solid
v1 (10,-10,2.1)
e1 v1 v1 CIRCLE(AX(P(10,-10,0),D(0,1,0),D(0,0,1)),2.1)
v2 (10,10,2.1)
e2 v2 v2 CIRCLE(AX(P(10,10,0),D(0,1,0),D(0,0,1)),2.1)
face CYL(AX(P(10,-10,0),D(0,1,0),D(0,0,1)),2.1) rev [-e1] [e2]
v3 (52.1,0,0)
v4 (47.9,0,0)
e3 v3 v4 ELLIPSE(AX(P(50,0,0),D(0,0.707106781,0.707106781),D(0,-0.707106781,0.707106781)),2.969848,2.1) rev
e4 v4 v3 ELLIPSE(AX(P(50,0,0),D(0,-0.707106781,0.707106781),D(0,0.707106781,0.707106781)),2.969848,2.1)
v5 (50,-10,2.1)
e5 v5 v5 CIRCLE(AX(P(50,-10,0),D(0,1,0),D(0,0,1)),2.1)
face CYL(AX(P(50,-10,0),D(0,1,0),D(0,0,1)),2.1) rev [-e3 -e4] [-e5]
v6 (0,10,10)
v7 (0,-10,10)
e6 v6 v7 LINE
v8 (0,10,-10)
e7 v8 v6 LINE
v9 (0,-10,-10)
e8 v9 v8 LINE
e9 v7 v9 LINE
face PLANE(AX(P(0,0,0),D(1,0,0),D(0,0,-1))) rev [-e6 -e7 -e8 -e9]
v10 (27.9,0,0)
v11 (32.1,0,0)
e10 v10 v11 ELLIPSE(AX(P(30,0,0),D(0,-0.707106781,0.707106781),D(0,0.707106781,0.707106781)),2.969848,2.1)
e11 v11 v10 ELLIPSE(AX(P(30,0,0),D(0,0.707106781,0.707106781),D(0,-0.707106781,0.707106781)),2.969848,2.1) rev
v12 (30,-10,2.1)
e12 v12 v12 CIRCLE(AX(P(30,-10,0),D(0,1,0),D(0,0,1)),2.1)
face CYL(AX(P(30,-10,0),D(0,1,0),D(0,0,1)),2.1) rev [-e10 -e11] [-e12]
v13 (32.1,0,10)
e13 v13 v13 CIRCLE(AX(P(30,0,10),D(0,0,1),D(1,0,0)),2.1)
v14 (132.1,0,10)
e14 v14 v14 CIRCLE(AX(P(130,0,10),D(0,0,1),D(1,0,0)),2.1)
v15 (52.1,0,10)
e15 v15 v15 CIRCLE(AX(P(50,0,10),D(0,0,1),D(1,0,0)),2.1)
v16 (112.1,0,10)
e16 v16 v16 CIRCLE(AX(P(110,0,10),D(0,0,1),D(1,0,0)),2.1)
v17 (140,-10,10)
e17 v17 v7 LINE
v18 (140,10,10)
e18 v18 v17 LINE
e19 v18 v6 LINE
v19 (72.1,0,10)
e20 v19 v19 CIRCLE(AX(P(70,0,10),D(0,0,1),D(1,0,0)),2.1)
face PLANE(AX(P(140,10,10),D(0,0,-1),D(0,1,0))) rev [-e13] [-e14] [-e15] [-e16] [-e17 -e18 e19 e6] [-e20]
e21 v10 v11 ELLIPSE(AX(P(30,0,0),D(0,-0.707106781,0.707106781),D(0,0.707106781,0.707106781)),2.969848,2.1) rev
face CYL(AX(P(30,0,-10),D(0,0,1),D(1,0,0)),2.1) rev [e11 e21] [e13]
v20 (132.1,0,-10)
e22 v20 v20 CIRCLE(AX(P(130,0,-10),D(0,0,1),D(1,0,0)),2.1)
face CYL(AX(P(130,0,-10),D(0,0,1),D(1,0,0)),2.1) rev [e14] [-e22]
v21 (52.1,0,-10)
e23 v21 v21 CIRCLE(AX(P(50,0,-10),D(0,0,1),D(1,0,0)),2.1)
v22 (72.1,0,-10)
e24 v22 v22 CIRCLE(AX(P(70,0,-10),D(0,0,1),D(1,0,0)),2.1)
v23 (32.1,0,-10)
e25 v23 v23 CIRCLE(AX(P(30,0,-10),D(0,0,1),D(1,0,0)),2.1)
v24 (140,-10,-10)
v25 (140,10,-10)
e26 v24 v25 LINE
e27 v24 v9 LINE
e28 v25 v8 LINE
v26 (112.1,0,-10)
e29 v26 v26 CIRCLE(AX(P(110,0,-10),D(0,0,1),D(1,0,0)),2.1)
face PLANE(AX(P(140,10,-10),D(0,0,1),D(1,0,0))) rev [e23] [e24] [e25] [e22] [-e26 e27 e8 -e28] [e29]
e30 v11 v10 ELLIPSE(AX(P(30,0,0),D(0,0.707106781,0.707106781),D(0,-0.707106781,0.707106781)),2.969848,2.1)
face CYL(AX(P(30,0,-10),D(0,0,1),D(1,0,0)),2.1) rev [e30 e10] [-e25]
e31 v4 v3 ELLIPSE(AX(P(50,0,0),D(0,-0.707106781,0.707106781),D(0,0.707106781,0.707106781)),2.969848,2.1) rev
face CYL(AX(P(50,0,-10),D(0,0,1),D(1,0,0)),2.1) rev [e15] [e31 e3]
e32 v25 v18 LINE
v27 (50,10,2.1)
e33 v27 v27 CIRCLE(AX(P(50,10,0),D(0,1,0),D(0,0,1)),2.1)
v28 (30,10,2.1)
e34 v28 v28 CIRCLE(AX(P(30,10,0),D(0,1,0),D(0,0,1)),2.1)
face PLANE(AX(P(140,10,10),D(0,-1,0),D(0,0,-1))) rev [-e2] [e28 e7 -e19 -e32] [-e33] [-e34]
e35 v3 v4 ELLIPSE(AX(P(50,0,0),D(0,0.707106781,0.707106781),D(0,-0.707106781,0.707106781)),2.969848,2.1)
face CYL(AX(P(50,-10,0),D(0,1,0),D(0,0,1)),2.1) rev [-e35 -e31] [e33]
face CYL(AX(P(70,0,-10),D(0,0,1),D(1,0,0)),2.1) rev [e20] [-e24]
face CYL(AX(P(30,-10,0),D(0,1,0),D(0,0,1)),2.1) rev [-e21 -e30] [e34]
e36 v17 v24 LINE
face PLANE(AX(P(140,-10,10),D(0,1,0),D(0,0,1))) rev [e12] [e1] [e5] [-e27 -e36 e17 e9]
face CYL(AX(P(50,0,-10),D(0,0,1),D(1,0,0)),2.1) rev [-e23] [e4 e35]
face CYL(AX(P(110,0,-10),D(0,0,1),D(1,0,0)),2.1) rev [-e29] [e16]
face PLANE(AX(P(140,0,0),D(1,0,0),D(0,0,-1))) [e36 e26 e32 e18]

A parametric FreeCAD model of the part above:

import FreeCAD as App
import Part
import Sketcher
from FreeCAD import Vector

doc = App.newDocument("Part")
body = doc.addObject("PartDesign::Body", "Body")

sketch1 = body.newObject("Sketcher::SketchObject", "Sketch")
sketch1.AttachmentSupport = (doc.getObject("YZ_Plane"), [""])
sketch1.MapMode = "FlatFace"
sketch1.addGeometry([
    Part.LineSegment(Vector(10, 10, 0), Vector(-10, 10, 0)),
    Part.LineSegment(Vector(-10, 10, 0), Vector(-10, -10, 0)),
    Part.LineSegment(Vector(-10, -10, 0), Vector(10, -10, 0)),
    Part.LineSegment(Vector(10, -10, 0), Vector(10, 10, 0)),
], False)
sketch1.addConstraint([
    Sketcher.Constraint("Coincident", 0, 2, 1, 1),
    Sketcher.Constraint("Coincident", 1, 2, 2, 1),
    Sketcher.Constraint("Coincident", 2, 2, 3, 1),
    Sketcher.Constraint("Coincident", 3, 2, 0, 1),
    Sketcher.Constraint("Horizontal", 0),
    Sketcher.Constraint("Vertical", 1),
    Sketcher.Constraint("Horizontal", 2),
    Sketcher.Constraint("Vertical", 3),
    Sketcher.Constraint("Symmetric", 0, 2, 2, 2, -1, 1),
    Sketcher.Constraint("Equal", 2, 1),
    Sketcher.Constraint("DistanceX", 0, 2, 0, 1, 20.0),
])
pad1 = body.newObject("PartDesign::Pad", "Pad")
pad1.Profile = sketch1
pad1.Length = 140

sketch2 = body.newObject("Sketcher::SketchObject", "Sketch001")
sketch2.AttachmentSupport = (doc.getObject("XY_Plane"), [""])
sketch2.MapMode = "FlatFace"
sketch2.AttachmentOffset = App.Placement(Vector(0, 0, 10), App.Rotation())
sketch2.addGeometry([
    Part.Circle(Vector(30, 0, 0), Vector(0, 0, 1), 2.1),
    Part.Circle(Vector(50, 0, 0), Vector(0, 0, 1), 2.1),
    Part.Circle(Vector(70, 0, 0), Vector(0, 0, 1), 2.1),
    Part.Circle(Vector(130, 0, 0), Vector(0, 0, 1), 2.1),
    Part.Circle(Vector(110, 0, 0), Vector(0, 0, 1), 2.1),
], False)
sketch2.addConstraint([
    Sketcher.Constraint("Equal", 0, 1),
    Sketcher.Constraint("Equal", 1, 2),
    Sketcher.Constraint("Equal", 2, 3),
    Sketcher.Constraint("Equal", 3, 4),
    Sketcher.Constraint("PointOnObject", 0, 3, -1),
    Sketcher.Constraint("PointOnObject", 1, 3, -1),
    Sketcher.Constraint("PointOnObject", 2, 3, -1),
    Sketcher.Constraint("PointOnObject", 3, 3, -1),
    Sketcher.Constraint("PointOnObject", 4, 3, -1),
    Sketcher.Constraint("Diameter", 0, 4.2),
    Sketcher.Constraint("DistanceX", -1, 1, 0, 3, 30.0),
    Sketcher.Constraint("DistanceX", -1, 1, 1, 3, 50.0),
    Sketcher.Constraint("DistanceX", -1, 1, 2, 3, 70.0),
    Sketcher.Constraint("DistanceX", -1, 1, 3, 3, 130.0),
    Sketcher.Constraint("DistanceX", -1, 1, 4, 3, 110.0),
])
pocket1 = body.newObject("PartDesign::Pocket", "Pocket")
pocket1.Profile = sketch2
pocket1.Type = "ThroughAll"

sketch3 = body.newObject("Sketcher::SketchObject", "Sketch002")
sketch3.AttachmentSupport = (doc.getObject("XZ_Plane"), [""])
sketch3.MapMode = "FlatFace"
sketch3.AttachmentOffset = App.Placement(Vector(0, 0, -10), App.Rotation())
sketch3.addGeometry([
    Part.Circle(Vector(10, 0, 0), Vector(0, 0, 1), 2.1),
    Part.Circle(Vector(30, 0, 0), Vector(0, 0, 1), 2.1),
    Part.Circle(Vector(50, 0, 0), Vector(0, 0, 1), 2.1),
], False)
sketch3.addConstraint([
    Sketcher.Constraint("Equal", 0, 1),
    Sketcher.Constraint("Equal", 1, 2),
    Sketcher.Constraint("PointOnObject", 0, 3, -1),
    Sketcher.Constraint("PointOnObject", 1, 3, -1),
    Sketcher.Constraint("PointOnObject", 2, 3, -1),
    Sketcher.Constraint("Diameter", 0, 4.2),
    Sketcher.Constraint("DistanceX", -1, 1, 0, 3, 10.0),
    Sketcher.Constraint("DistanceX", -1, 1, 1, 3, 30.0),
    Sketcher.Constraint("DistanceX", -1, 1, 2, 3, 50.0),
])
pocket2 = body.newObject("PartDesign::Pocket", "Pocket001")
pocket2.Profile = sketch3
pocket2.Type = "ThroughAll"
pocket2.Reversed = True

doc.recompute()
